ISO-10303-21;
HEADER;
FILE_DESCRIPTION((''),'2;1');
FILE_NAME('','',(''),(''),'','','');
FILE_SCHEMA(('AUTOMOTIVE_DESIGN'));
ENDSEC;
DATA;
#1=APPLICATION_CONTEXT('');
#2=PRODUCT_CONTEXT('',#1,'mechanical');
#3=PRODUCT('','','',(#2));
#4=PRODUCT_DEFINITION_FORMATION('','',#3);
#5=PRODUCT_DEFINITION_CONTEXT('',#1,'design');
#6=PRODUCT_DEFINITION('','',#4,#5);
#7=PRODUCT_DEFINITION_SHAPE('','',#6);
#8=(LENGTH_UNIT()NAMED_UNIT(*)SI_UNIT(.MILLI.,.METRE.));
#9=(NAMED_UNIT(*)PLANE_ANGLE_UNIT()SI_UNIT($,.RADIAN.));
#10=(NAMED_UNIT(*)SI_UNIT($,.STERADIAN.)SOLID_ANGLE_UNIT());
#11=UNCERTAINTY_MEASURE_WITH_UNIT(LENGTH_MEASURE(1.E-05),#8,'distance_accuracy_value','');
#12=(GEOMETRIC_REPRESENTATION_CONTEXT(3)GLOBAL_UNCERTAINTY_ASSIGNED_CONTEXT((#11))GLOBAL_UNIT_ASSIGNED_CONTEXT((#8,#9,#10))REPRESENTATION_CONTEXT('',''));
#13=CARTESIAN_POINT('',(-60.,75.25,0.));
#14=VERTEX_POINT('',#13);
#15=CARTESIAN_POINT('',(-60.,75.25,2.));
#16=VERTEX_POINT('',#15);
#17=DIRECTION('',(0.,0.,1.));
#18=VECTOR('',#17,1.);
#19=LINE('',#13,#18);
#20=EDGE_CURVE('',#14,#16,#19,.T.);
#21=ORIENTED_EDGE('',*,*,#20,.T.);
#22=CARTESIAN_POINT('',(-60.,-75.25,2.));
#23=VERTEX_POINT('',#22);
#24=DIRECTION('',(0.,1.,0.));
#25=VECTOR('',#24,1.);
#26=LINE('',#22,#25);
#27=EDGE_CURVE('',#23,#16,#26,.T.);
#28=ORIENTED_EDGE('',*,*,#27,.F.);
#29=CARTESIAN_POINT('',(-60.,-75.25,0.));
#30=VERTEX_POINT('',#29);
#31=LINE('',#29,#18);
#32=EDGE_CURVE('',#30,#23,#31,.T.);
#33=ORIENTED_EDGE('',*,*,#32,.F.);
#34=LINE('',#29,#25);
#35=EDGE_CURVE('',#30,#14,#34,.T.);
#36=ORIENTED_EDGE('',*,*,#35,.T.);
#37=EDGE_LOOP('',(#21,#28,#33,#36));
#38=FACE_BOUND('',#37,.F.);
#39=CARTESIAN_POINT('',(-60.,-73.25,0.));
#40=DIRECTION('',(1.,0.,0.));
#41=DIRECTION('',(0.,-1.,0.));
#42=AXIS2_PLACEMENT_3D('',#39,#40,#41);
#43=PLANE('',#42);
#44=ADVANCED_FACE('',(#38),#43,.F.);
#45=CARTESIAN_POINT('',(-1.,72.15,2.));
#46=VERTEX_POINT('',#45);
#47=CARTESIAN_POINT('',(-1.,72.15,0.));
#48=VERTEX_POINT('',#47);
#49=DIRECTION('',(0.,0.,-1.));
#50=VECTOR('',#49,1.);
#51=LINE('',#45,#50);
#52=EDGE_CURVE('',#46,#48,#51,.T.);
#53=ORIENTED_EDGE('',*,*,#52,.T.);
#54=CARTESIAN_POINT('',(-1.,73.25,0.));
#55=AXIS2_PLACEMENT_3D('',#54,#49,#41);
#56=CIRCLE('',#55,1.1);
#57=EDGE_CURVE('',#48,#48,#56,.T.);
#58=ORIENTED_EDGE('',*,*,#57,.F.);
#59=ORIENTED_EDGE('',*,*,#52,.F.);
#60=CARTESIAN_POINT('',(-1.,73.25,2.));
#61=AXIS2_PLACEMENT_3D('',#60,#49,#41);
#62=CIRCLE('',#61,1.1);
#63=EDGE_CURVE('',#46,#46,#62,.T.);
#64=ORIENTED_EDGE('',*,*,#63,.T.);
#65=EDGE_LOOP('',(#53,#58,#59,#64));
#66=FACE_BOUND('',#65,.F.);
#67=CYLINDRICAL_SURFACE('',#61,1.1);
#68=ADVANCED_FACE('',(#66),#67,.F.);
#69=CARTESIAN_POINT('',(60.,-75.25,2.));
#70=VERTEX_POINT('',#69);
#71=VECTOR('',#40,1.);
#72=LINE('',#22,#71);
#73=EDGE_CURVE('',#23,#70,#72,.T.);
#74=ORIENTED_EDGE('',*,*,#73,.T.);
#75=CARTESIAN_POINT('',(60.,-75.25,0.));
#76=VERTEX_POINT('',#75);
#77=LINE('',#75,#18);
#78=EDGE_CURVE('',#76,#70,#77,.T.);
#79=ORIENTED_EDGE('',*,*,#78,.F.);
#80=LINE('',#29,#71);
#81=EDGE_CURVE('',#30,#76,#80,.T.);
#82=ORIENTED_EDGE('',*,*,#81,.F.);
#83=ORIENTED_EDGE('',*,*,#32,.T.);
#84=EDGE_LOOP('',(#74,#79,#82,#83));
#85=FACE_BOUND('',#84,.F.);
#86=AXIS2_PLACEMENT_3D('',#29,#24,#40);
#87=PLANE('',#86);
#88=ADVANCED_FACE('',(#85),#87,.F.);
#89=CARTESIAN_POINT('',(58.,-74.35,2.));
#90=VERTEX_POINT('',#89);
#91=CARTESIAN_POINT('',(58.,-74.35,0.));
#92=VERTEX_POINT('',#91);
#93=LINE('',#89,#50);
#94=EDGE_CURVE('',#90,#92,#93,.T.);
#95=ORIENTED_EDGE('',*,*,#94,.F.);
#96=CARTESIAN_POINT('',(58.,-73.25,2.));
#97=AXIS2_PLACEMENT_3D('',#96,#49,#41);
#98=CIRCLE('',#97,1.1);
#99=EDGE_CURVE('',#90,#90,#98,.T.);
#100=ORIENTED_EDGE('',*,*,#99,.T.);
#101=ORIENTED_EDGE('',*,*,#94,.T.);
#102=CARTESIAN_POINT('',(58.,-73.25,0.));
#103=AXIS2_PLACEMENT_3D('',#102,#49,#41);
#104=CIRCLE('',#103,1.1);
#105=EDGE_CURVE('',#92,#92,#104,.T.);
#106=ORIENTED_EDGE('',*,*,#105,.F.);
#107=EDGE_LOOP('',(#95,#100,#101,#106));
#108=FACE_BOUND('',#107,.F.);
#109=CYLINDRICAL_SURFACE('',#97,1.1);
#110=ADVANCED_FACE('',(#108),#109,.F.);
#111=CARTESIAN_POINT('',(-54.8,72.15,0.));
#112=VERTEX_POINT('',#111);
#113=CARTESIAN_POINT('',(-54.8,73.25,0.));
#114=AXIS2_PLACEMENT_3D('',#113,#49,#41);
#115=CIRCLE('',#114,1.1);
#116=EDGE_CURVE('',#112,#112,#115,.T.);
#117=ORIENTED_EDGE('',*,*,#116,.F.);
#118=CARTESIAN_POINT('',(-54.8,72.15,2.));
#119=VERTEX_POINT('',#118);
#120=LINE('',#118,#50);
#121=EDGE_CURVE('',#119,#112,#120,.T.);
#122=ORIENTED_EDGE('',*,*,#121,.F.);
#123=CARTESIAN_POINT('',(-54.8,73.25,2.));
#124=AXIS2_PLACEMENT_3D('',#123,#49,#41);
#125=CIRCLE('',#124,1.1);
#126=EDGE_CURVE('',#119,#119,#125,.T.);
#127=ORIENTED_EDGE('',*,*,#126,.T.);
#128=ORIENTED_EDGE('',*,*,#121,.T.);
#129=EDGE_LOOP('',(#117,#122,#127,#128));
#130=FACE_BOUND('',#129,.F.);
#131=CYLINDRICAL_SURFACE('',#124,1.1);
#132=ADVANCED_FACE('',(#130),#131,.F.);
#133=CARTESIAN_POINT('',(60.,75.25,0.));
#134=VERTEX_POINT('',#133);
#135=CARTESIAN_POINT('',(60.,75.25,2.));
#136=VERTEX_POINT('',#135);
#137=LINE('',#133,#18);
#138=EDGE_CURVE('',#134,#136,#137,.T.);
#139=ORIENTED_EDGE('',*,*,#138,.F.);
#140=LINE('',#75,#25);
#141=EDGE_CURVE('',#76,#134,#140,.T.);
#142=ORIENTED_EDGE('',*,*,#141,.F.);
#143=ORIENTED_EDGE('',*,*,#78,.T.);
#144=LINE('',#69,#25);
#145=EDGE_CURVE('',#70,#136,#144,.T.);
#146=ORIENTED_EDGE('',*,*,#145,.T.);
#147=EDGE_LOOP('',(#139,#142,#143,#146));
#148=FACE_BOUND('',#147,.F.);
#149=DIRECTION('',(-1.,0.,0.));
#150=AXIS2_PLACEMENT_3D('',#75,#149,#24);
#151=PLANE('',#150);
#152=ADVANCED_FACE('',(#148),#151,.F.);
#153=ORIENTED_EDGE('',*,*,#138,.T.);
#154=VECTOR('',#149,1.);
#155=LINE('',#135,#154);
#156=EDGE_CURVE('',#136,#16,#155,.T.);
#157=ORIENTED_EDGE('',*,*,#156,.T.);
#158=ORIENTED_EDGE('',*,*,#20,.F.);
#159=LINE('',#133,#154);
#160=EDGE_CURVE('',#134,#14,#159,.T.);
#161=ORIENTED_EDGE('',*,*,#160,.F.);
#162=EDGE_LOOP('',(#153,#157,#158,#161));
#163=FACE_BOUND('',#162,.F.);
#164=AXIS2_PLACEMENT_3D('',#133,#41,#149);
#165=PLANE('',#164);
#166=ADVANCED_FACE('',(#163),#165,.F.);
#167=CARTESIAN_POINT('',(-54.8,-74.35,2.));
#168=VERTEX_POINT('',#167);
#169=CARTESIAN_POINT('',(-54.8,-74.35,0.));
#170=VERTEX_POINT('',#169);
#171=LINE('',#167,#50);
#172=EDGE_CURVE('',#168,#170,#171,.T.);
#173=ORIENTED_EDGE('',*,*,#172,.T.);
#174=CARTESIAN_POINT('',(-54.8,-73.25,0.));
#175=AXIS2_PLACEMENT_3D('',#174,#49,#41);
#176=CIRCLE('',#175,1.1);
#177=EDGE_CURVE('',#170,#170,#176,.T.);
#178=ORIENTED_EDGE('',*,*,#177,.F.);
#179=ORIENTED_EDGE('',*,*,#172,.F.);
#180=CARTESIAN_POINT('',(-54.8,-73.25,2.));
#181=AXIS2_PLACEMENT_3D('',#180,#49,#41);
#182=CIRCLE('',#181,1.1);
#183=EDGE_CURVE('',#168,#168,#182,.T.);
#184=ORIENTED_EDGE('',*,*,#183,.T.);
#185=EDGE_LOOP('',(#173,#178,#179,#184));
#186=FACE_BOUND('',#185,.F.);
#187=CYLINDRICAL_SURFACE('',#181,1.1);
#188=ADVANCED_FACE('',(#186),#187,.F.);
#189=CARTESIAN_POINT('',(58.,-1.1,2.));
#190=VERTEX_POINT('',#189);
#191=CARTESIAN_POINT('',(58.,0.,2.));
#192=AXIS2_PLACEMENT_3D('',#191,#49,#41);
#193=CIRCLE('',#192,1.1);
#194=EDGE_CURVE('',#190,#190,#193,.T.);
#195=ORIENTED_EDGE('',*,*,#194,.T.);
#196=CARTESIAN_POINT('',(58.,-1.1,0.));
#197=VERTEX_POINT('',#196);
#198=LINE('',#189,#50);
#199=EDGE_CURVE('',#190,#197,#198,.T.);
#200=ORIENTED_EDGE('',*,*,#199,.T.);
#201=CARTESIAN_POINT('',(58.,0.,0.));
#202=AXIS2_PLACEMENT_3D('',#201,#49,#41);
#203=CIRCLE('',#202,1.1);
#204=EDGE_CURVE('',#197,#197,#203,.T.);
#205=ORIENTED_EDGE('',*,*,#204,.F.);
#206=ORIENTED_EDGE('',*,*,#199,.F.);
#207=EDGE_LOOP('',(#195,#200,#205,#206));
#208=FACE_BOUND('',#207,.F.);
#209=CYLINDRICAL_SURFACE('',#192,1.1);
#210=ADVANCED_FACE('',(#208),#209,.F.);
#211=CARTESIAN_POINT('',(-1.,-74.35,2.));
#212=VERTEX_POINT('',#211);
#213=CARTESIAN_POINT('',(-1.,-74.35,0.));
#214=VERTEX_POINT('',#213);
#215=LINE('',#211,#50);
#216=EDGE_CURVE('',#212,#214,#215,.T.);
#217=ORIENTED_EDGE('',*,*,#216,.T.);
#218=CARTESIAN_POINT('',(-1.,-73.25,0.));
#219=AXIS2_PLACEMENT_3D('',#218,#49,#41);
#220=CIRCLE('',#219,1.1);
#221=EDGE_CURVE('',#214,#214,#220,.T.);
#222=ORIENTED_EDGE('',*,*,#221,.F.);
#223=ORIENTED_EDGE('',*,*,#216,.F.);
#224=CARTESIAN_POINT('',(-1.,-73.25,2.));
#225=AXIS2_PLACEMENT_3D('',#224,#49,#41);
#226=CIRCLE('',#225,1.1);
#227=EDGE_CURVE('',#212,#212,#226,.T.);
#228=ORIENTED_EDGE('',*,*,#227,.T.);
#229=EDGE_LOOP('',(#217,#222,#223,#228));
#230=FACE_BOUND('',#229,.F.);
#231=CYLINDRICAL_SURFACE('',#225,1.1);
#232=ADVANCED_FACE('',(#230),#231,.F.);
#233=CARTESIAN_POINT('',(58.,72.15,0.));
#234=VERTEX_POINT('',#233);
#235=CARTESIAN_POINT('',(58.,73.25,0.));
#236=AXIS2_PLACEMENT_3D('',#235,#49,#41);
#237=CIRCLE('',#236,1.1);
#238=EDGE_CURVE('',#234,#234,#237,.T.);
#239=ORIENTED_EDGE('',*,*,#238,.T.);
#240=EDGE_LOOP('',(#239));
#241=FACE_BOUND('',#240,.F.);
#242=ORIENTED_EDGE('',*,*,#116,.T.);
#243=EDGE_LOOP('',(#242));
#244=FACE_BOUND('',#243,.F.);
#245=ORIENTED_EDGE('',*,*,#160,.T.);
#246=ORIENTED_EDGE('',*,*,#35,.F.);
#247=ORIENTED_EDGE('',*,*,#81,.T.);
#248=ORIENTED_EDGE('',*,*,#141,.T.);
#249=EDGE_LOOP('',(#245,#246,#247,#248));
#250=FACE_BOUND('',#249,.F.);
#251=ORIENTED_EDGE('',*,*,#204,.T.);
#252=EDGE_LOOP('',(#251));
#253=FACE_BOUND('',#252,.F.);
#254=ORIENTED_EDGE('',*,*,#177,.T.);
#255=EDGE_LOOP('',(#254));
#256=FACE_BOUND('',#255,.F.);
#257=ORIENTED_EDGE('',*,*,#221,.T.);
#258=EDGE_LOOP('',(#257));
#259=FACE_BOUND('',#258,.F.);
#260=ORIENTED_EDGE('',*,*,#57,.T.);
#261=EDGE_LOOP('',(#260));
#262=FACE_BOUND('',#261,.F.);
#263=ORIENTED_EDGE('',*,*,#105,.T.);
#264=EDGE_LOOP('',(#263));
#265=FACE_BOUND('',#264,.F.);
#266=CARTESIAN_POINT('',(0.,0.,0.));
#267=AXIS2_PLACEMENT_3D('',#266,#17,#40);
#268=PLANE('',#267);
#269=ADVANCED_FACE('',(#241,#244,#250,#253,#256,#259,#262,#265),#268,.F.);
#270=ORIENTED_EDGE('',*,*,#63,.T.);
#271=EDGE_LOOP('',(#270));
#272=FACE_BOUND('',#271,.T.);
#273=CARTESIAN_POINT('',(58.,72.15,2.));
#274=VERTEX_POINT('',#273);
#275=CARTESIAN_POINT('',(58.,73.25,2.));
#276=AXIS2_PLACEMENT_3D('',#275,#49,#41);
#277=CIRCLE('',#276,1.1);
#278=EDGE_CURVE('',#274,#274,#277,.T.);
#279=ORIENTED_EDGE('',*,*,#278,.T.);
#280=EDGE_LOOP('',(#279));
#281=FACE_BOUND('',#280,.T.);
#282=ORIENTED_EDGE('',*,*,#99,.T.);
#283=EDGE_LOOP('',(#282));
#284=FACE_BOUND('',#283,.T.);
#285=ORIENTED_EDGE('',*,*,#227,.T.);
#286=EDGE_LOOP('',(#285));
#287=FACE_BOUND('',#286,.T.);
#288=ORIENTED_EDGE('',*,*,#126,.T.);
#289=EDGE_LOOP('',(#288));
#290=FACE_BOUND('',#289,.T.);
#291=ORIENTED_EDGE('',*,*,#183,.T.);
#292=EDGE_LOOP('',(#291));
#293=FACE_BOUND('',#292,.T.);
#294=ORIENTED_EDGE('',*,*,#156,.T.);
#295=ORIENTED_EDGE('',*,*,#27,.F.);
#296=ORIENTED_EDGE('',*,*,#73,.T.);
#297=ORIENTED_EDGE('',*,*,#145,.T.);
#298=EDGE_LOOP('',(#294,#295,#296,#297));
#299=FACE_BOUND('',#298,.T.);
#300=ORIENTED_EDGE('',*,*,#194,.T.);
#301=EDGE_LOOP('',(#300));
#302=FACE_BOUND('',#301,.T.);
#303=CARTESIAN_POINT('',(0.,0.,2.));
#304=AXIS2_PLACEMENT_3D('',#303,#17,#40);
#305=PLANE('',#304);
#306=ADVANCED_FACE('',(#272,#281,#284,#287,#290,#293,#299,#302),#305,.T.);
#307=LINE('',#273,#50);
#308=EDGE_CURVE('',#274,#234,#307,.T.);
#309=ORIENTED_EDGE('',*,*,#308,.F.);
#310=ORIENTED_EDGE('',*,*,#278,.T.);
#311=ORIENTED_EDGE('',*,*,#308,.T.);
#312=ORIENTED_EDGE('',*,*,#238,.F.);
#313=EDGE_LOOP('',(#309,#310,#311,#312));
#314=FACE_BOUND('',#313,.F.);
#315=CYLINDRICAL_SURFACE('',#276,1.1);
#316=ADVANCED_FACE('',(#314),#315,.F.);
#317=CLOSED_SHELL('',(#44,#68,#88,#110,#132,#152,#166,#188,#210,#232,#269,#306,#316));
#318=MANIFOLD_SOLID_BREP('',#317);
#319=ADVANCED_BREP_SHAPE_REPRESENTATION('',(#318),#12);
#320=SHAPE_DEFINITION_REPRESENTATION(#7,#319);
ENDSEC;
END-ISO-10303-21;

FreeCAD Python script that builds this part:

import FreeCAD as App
import Part
import Sketcher

V = App.Vector
Q = App.Units.Quantity


def add_polygon(sketch, points):
    """Adds a closed chain of lines whose ends are joined by coincident constraints."""
    first, n = sketch.GeometryCount, len(points)
    for a, b in zip(points, points[1:] + points[:1]):
        sketch.addGeometry(Part.LineSegment(App.Vector(*a, 0), App.Vector(*b, 0)), False)
    for i in range(n):
        sketch.addConstraint(Sketcher.Constraint("Coincident", first + i, 2, first + (i + 1) % n, 1))

doc = App.newDocument("Part")
body = doc.addObject("PartDesign::Body", "Body")

sketch1 = body.newObject("Sketcher::SketchObject", "Sketch")
sketch1.AttachmentSupport = (doc.getObject("XY_Plane"), [""])
sketch1.MapMode = "FlatFace"
add_polygon(sketch1, [(-60, -75), (60, -75), (60, 75), (-60, 75)])
sketch1.addConstraint([
    Sketcher.Constraint("Horizontal", 0),
    Sketcher.Constraint("Vertical", 1),
    Sketcher.Constraint("Horizontal", 2),
    Sketcher.Constraint("Vertical", 3),
    Sketcher.Constraint("Symmetric", 0, 2, 2, 2, -1, 1),
    Sketcher.Constraint("DistanceX", 0, 1, 0, 2, Q("120 mm")),
    Sketcher.Constraint("DistanceY", 1, 1, 1, 2, Q("150.5 mm")),
])
pad1 = body.newObject("PartDesign::Pad", "Pad")
pad1.Profile = sketch1
pad1.Length = 2

sketch2 = body.newObject("Sketcher::SketchObject", "Sketch001")
sketch2.AttachmentSupport = (doc.getObject("XY_Plane"), [""])
sketch2.MapMode = "FlatFace"
sketch2.AttachmentOffset = App.Placement(V(0, 0, 2), App.Rotation())
sketch2.addGeometry([
    Part.Circle(V(58, 73.2, 0), V(0, 0, 1), 1.1),
    Part.Circle(V(58, 0, 0), V(0, 0, 1), 1.1),
    Part.Circle(V(58, -73.2, 0), V(0, 0, 1), 1.1),
    Part.Circle(V(-1, -73.2, 0), V(0, 0, 1), 1.1),
    Part.Circle(V(-54.8, -73.2, 0), V(0, 0, 1), 1.1),
    Part.Circle(V(-54.8, 73.2, 0), V(0, 0, 1), 1.1),
    Part.Circle(V(-1, 73.2, 0), V(0, 0, 1), 1.1),
], False)
sketch2.addConstraint([
    Sketcher.Constraint("Equal", 0, 1),
    Sketcher.Constraint("Equal", 1, 2),
    Sketcher.Constraint("Equal", 2, 3),
    Sketcher.Constraint("Equal", 3, 4),
    Sketcher.Constraint("Equal", 4, 5),
    Sketcher.Constraint("Equal", 5, 6),
    Sketcher.Constraint("Symmetric", 0, 3, 2, 3, -1),
    Sketcher.Constraint("Symmetric", 4, 3, 5, 3, -1),
    Sketcher.Constraint("Symmetric", 3, 3, 6, 3, -1),
    Sketcher.Constraint("PointOnObject", 1, 3, -1),
    Sketcher.Constraint("Horizontal", 2, 3, 3, 3),
    Sketcher.Constraint("Horizontal", 3, 3, 4, 3),
    Sketcher.Constraint("Vertical", 0, 3, 1, 3),
    Sketcher.Constraint("Diameter", 0, Q("2.2 mm")),
    Sketcher.Constraint("DistanceX", -1, 1, 0, 3, Q("58 mm")),
    Sketcher.Constraint("DistanceX", 3, 3, -1, 1, Q("1 mm")),
    Sketcher.Constraint("DistanceX", 4, 3, -1, 1, Q("54.8 mm")),
    Sketcher.Constraint("DistanceY", 2, 3, 0, 3, Q("146.5 mm")),
])
doc.recompute()
hole = body.newObject("PartDesign::Hole", "Hole")
hole.Profile = sketch2
hole.ThreadType = "None"
hole.Diameter = 2.2
hole.DepthType = "Dimension"
hole.Depth = 2
hole.DrillPoint = "Flat"

doc.recompute()
